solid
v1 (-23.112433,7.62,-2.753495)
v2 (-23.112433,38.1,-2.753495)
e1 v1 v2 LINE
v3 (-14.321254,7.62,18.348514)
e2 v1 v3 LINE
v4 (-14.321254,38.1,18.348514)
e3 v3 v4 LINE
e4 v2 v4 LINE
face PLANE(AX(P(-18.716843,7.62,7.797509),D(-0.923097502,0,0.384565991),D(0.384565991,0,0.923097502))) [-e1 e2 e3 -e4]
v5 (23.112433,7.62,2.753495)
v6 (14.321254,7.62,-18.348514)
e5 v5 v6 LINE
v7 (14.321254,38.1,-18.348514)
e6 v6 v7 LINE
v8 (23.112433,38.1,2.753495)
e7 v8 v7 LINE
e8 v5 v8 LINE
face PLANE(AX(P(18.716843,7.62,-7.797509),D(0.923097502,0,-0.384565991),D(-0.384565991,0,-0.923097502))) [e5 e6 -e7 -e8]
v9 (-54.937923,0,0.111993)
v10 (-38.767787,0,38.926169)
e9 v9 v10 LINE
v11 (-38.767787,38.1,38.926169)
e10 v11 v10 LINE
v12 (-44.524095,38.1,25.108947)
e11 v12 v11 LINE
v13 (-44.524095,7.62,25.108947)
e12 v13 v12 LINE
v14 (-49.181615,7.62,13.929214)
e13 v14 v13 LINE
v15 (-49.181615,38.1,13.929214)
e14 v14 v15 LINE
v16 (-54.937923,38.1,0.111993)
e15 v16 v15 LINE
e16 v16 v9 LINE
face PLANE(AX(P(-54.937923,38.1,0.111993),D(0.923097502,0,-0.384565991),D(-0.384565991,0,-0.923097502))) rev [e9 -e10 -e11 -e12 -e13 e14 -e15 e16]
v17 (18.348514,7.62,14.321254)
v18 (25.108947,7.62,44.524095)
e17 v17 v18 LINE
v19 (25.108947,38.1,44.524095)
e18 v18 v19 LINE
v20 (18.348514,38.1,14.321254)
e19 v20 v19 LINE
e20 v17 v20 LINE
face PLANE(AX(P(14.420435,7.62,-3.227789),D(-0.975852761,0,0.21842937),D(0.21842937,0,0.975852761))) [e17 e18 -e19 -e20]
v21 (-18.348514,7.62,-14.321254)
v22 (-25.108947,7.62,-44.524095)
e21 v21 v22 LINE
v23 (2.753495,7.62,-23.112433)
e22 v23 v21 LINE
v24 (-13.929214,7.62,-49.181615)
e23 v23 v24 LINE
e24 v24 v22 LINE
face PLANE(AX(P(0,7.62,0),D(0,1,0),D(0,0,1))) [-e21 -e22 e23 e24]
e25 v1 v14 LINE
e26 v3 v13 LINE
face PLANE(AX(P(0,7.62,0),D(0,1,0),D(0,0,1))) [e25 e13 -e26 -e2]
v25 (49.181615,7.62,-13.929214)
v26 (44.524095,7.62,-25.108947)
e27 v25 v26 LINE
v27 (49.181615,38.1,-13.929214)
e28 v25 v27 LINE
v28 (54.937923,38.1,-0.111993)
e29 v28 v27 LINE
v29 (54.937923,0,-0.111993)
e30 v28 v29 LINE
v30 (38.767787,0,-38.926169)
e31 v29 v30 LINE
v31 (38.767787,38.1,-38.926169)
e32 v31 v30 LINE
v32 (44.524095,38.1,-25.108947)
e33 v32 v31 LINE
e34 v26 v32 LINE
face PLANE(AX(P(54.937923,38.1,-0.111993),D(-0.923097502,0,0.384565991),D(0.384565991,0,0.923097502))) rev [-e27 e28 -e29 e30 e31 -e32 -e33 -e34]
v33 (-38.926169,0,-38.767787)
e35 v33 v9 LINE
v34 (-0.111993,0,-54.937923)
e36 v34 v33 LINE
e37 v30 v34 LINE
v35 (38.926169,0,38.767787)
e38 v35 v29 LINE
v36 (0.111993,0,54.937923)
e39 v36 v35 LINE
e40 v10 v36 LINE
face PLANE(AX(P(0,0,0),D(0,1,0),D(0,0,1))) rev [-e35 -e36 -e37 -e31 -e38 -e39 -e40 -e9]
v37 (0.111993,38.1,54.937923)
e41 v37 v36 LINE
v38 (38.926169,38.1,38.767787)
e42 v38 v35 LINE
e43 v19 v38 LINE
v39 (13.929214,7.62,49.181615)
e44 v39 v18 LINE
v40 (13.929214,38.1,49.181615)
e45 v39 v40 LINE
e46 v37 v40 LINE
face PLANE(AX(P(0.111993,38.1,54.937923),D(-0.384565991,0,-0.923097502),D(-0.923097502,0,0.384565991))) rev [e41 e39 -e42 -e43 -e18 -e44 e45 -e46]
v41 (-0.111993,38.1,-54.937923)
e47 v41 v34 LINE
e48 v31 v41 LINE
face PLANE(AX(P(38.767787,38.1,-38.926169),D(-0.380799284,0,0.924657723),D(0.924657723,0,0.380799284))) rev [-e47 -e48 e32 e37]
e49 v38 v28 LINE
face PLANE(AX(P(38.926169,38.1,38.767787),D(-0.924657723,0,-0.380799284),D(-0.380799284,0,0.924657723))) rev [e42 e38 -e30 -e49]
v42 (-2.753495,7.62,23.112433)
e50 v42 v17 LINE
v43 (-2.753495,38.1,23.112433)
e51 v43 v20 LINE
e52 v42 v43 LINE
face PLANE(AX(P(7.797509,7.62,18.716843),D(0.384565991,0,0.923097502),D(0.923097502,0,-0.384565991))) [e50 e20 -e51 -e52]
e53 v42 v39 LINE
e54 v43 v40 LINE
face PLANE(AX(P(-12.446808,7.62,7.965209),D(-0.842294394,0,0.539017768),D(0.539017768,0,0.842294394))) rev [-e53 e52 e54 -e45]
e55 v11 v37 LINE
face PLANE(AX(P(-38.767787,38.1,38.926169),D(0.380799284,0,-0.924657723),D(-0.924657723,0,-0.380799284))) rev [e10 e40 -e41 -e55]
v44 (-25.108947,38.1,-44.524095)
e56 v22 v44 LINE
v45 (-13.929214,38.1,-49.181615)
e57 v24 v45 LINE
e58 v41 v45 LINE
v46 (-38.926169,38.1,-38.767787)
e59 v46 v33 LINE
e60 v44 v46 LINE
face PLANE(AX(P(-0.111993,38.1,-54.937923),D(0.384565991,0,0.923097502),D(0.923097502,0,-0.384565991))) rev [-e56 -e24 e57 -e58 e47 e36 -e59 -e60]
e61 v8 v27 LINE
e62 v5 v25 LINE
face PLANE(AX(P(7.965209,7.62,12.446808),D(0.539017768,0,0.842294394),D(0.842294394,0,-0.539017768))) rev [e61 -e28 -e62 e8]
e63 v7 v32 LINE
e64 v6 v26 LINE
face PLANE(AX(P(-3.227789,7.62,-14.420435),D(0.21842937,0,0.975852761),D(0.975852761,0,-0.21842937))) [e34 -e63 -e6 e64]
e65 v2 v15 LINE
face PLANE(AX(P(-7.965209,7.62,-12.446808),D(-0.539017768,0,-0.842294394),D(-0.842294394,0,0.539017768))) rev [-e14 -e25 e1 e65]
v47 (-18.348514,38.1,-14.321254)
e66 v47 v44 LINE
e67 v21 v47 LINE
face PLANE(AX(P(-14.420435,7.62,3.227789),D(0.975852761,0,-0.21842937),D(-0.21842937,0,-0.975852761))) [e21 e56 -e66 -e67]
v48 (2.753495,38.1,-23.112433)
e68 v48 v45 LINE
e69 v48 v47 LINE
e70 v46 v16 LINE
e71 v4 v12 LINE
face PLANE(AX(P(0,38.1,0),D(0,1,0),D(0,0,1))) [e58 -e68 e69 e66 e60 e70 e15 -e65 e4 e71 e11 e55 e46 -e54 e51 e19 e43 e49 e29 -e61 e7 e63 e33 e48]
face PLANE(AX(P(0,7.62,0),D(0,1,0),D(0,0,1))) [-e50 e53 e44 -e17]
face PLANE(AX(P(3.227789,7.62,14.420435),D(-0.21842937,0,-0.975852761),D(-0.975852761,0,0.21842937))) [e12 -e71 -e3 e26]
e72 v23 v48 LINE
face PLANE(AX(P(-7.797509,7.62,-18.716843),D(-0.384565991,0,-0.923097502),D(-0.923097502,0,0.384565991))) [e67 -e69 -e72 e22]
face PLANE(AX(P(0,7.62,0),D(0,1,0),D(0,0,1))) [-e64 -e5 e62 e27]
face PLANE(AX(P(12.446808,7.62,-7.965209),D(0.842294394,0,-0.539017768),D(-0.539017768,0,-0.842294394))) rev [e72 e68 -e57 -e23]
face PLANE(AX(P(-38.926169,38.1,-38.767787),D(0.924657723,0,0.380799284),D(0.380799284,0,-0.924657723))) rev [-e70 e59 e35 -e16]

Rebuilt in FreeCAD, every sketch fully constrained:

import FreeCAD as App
import Part
import Sketcher
Q = App.Units.Quantity

doc = App.newDocument("Part")
params = doc.addObject("Spreadsheet::Sheet", "Params")
for row, (alias, value) in enumerate([
    ("pad1_length", "1.5 in"),
    ("sketch2_length", "0.9 in"),
    ("pocket1_length", "1.2 in"),
], start=1):
    params.set(f"A{row}", alias)
    params.set(f"B{row}", "=" + value)
    params.setAlias(f"B{row}", alias)

body = doc.addObject("PartDesign::Body", "Body")

sketch1 = doc.addObject("Sketcher::SketchObject", "Sketch")
body.addObject(sketch1)
sketch1.AttachmentSupport = (doc.XZ_Plane, [""])
sketch1.MapMode = "FlatFace"
sketch1.addGeometry([
    Part.LineSegment(App.Vector(0, -55, 0), App.Vector(-39, -39, 0)),
    Part.LineSegment(App.Vector(-39, -39, 0), App.Vector(-55, 0, 0)),
    Part.LineSegment(App.Vector(-55, 0, 0), App.Vector(-39, 39, 0)),
    Part.LineSegment(App.Vector(-39, 39, 0), App.Vector(0, 55, 0)),
    Part.LineSegment(App.Vector(0, 55, 0), App.Vector(39, 39, 0)),
    Part.LineSegment(App.Vector(39, 39, 0), App.Vector(55, 0, 0)),
    Part.LineSegment(App.Vector(55, 0, 0), App.Vector(39, -39, 0)),
    Part.LineSegment(App.Vector(39, -39, 0), App.Vector(0, -55, 0)),
], False)
sketch1.addConstraint([
    Sketcher.Constraint("Coincident", 0, 2, 1, 1),
    Sketcher.Constraint("Coincident", 1, 2, 2, 1),
    Sketcher.Constraint("Coincident", 2, 2, 3, 1),
    Sketcher.Constraint("Coincident", 3, 2, 4, 1),
    Sketcher.Constraint("Coincident", 4, 2, 5, 1),
    Sketcher.Constraint("Coincident", 5, 2, 6, 1),
    Sketcher.Constraint("Coincident", 6, 2, 7, 1),
    Sketcher.Constraint("Coincident", 7, 2, 0, 1),
    Sketcher.Constraint("Symmetric", 0, 2, 4, 2, -1, 1),
    Sketcher.Constraint("Symmetric", 1, 2, 5, 2, -1, 1),
    Sketcher.Constraint("Symmetric", 2, 2, 6, 2, -1, 1),
    Sketcher.Constraint("Symmetric", 3, 2, 7, 2, -1, 1),
    Sketcher.Constraint("Perpendicular", 0, 2),
    Sketcher.Constraint("Perpendicular", 1, 3),
    Sketcher.Constraint("Equal", 0, 1),
    Sketcher.Constraint("Equal", 1, 2),
    Sketcher.Constraint("Equal", 2, 3),
    Sketcher.Constraint("DistanceY", 0, 2, 1, 2, Q("1.5307 in")),
    Sketcher.Constraint("DistanceX", 0, 2, -1, 1, 38.926169),
    Sketcher.Constraint("DistanceY", 1, 2, 3, 2, 54.825931),
])
pad1 = doc.addObject("PartDesign::Pad", "Pad")
body.addObject(pad1)
pad1.Profile = sketch1
pad1.setExpression("Length", "Params.pad1_length")
pad1.Reversed = True

sketch2 = doc.addObject("Sketcher::SketchObject", "Sketch001")
body.addObject(sketch2)
sketch2.AttachmentSupport = (doc.XZ_Plane, [""])
sketch2.MapMode = "FlatFace"
sketch2.AttachmentOffset = App.Placement(App.Vector(0, 0, -1.5 * 25.4), App.Rotation())
sketch2.addGeometry([
    Part.LineSegment(App.Vector(18, 14, 0), App.Vector(-3, 23, 0)),
    Part.LineSegment(App.Vector(-3, 23, 0), App.Vector(14, 49, 0)),
    Part.LineSegment(App.Vector(14, 49, 0), App.Vector(25, 45, 0)),
    Part.LineSegment(App.Vector(25, 45, 0), App.Vector(18, 14, 0)),
    Part.LineSegment(App.Vector(-14, 18, 0), App.Vector(-23, -3, 0)),
    Part.LineSegment(App.Vector(-23, -3, 0), App.Vector(-49, 14, 0)),
    Part.LineSegment(App.Vector(-49, 14, 0), App.Vector(-45, 25, 0)),
    Part.LineSegment(App.Vector(-45, 25, 0), App.Vector(-14, 18, 0)),
    Part.LineSegment(App.Vector(-18, -14, 0), App.Vector(3, -23, 0)),
    Part.LineSegment(App.Vector(3, -23, 0), App.Vector(-14, -49, 0)),
    Part.LineSegment(App.Vector(-14, -49, 0), App.Vector(-25, -45, 0)),
    Part.LineSegment(App.Vector(-25, -45, 0), App.Vector(-18, -14, 0)),
    Part.LineSegment(App.Vector(14, -18, 0), App.Vector(23, 3, 0)),
    Part.LineSegment(App.Vector(23, 3, 0), App.Vector(49, -14, 0)),
    Part.LineSegment(App.Vector(49, -14, 0), App.Vector(45, -25, 0)),
    Part.LineSegment(App.Vector(45, -25, 0), App.Vector(14, -18, 0)),
], False)
sketch2.addConstraint([
    Sketcher.Constraint("Coincident", 0, 2, 1, 1),
    Sketcher.Constraint("Coincident", 1, 2, 2, 1),
    Sketcher.Constraint("Coincident", 2, 2, 3, 1),
    Sketcher.Constraint("Coincident", 3, 2, 0, 1),
    Sketcher.Constraint("Coincident", 4, 2, 5, 1),
    Sketcher.Constraint("Coincident", 5, 2, 6, 1),
    Sketcher.Constraint("Coincident", 6, 2, 7, 1),
    Sketcher.Constraint("Coincident", 7, 2, 4, 1),
    Sketcher.Constraint("Coincident", 8, 2, 9, 1),
    Sketcher.Constraint("Coincident", 9, 2, 10, 1),
    Sketcher.Constraint("Coincident", 10, 2, 11, 1),
    Sketcher.Constraint("Coincident", 11, 2, 8, 1),
    Sketcher.Constraint("Coincident", 12, 2, 13, 1),
    Sketcher.Constraint("Coincident", 13, 2, 14, 1),
    Sketcher.Constraint("Coincident", 14, 2, 15, 1),
    Sketcher.Constraint("Coincident", 15, 2, 12, 1),
    Sketcher.Constraint("Symmetric", 0, 2, 8, 2, -1, 1),
    Sketcher.Constraint("Symmetric", 1, 2, 9, 2, -1, 1),
    Sketcher.Constraint("Symmetric", 2, 2, 10, 2, -1, 1),
    Sketcher.Constraint("Symmetric", 3, 2, 11, 2, -1, 1),
    Sketcher.Constraint("Symmetric", 4, 2, 12, 2, -1, 1),
    Sketcher.Constraint("Symmetric", 5, 2, 13, 2, -1, 1),
    Sketcher.Constraint("Symmetric", 6, 2, 14, 2, -1, 1),
    Sketcher.Constraint("Symmetric", 7, 2, 15, 2, -1, 1),
    Sketcher.Constraint("Parallel", 0, 2),
    Sketcher.Constraint("Perpendicular", 2, 4),
    Sketcher.Constraint("Perpendicular", 1, 5),
    Sketcher.Constraint("Parallel", 4, 6),
    Sketcher.Constraint("Perpendicular", 3, 7),
    Sketcher.Constraint("Equal", 1, 3),
    Sketcher.Constraint("Equal", 0, 4),
    Sketcher.Constraint("Equal", 3, 5),
    Sketcher.Constraint("Distance", 0, Q("0.9 in")),
    Sketcher.Constraint("DistanceX", 1, 2, 3, 2, 4.419299),
    Sketcher.Constraint("DistanceY", 5, 2, 1, 2, 35.252401),
    Sketcher.Constraint("DistanceX", 6, 2, 0, 2, 41.7706),
    Sketcher.Constraint("DistanceX", 5, 2, 9, 2, 35.252401),
    Sketcher.Constraint("DistanceY", 10, 2, 4, 2, 41.7706),
    Sketcher.Constraint("DistanceY", 14, 2, 3, 2, 39.430201),
    Sketcher.Constraint("DistanceY", 2, 2, 1, 2, 4.65752),
])
sketch2.setExpression("Constraints[32]", "Params.sketch2_length")
pocket1 = doc.addObject("PartDesign::Pocket", "Pocket")
body.addObject(pocket1)
pocket1.Profile = sketch2
pocket1.setExpression("Length", "Params.pocket1_length")
pocket1.Reversed = True

doc.recompute()
